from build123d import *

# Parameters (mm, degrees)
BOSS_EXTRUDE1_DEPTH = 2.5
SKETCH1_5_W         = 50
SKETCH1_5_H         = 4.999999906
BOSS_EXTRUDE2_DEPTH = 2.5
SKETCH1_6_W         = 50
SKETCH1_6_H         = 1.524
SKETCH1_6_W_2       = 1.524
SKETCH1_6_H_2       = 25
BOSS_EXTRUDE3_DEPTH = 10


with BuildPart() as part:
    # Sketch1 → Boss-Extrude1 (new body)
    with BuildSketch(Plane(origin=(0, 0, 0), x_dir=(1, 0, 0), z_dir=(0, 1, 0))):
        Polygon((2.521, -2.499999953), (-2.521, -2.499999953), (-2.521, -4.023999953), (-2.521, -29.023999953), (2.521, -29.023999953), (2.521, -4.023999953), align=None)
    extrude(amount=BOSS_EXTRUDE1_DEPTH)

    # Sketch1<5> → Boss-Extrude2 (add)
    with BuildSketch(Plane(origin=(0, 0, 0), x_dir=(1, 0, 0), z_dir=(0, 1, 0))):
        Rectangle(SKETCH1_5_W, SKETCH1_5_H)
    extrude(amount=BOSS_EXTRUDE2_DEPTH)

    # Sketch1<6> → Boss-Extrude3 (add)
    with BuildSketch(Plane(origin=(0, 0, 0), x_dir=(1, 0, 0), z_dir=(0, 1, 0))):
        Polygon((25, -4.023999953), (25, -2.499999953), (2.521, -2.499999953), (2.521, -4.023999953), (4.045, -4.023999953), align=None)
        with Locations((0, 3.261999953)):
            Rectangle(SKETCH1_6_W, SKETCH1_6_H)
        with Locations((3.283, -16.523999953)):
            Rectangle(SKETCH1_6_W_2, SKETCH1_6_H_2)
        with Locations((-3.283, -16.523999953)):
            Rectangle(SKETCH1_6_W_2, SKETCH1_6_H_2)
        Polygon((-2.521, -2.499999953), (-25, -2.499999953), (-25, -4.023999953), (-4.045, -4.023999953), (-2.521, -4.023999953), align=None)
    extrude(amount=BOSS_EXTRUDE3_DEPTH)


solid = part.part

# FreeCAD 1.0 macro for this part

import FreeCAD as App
import Part
import Sketcher

V = App.Vector

doc = App.newDocument("Part")
params = doc.addObject("Spreadsheet::Sheet", "Params")
for row, (alias, value) in enumerate([
    ("pad1_length", "2.5 mm"),
    ("sketch2_width", "50 mm"),
    ("sketch2_height", "5 mm"),
    ("pad2_length", "2.5 mm"),
    ("sketch3_width", "50 mm"),
    ("sketch3_height", "25 mm"),
    ("pad3_length", "10 mm"),
], start=1):
    params.set(f"A{row}", alias)
    params.set(f"B{row}", "=" + value)
    params.setAlias(f"B{row}", alias)

body = doc.addObject("PartDesign::Body", "Body")

sketch1 = body.newObject("Sketcher::SketchObject", "Sketch")
sketch1.AttachmentSupport = (doc.getObject("XZ_Plane"), [""])
sketch1.MapMode = "FlatFace"
sketch1.addGeometry([
    Part.LineSegment(V(3, 2, 0), V(-3, 2, 0)),
    Part.LineSegment(V(-3, 2, 0), V(-3, 29, 0)),
    Part.LineSegment(V(-3, 29, 0), V(3, 29, 0)),
    Part.LineSegment(V(3, 29, 0), V(3, 2, 0)),
], False)
sketch1.addConstraint([
    Sketcher.Constraint("Coincident", 0, 2, 1, 1),
    Sketcher.Constraint("Coincident", 1, 2, 2, 1),
    Sketcher.Constraint("Coincident", 2, 2, 3, 1),
    Sketcher.Constraint("Coincident", 3, 2, 0, 1),
    Sketcher.Constraint("Horizontal", 0),
    Sketcher.Constraint("Vertical", 1),
    Sketcher.Constraint("Horizontal", 2),
    Sketcher.Constraint("Vertical", 3),
    Sketcher.Constraint("DistanceY", -1, 1, 0, 2, 2.5),
    Sketcher.Constraint("DistanceX", 0, 2, 0, 1, 5.042),
    Sketcher.Constraint("DistanceY", 1, 1, 1, 2, 26.524),
    Sketcher.Constraint("DistanceX", 0, 2, -1, 1, 2.521),
])
pad1 = body.newObject("PartDesign::Pad", "Pad")
pad1.Profile = sketch1
pad1.setExpression("Length", "Params.pad1_length")
pad1.Reversed = True

sketch2 = body.newObject("Sketcher::SketchObject", "Sketch001")
sketch2.AttachmentSupport = (doc.getObject("XZ_Plane"), [""])
sketch2.MapMode = "FlatFace"
sketch2.addGeometry([
    Part.LineSegment(V(-25, -2.5, 0), V(-25, 2.5, 0)),
    Part.LineSegment(V(-25, 2.5, 0), V(25, 2.5, 0)),
    Part.LineSegment(V(25, 2.5, 0), V(25, -2.5, 0)),
    Part.LineSegment(V(25, -2.5, 0), V(-25, -2.5, 0)),
], False)
sketch2.addConstraint([
    Sketcher.Constraint("Coincident", 0, 2, 1, 1),
    Sketcher.Constraint("Coincident", 1, 2, 2, 1),
    Sketcher.Constraint("Coincident", 2, 2, 3, 1),
    Sketcher.Constraint("Coincident", 3, 2, 0, 1),
    Sketcher.Constraint("Vertical", 0),
    Sketcher.Constraint("Horizontal", 1),
    Sketcher.Constraint("Vertical", 2),
    Sketcher.Constraint("Horizontal", 3),
    Sketcher.Constraint("Symmetric", 0, 2, 2, 2, -1, 1),
    Sketcher.Constraint("DistanceX", 1, 1, 1, 2, 50.0),
    Sketcher.Constraint("DistanceY", 0, 1, 0, 2, 5.0),
])
sketch2.setExpression("Constraints[9]", "Params.sketch2_width")
sketch2.setExpression("Constraints[10]", "Params.sketch2_height")
pad2 = body.newObject("PartDesign::Pad", "Pad001")
pad2.Profile = sketch2
pad2.setExpression("Length", "Params.pad2_length")
pad2.Reversed = True

sketch3 = body.newObject("Sketcher::SketchObject", "Sketch002")
sketch3.AttachmentSupport = (doc.getObject("XZ_Plane"), [""])
sketch3.MapMode = "FlatFace"
sketch3.addGeometry([
    Part.LineSegment(V(25, 4, 0), V(25, 2.5, 0)),
    Part.LineSegment(V(25, 2.5, 0), V(2.5, 2.5, 0)),
    Part.LineSegment(V(2.5, 2.5, 0), V(2.5, 29, 0)),
    Part.LineSegment(V(2.5, 29, 0), V(4, 29, 0)),
    Part.LineSegment(V(4, 29, 0), V(4, 4, 0)),
    Part.LineSegment(V(4, 4, 0), V(25, 4, 0)),
    Part.LineSegment(V(-25, -4, 0), V(-25, -2.5, 0)),
    Part.LineSegment(V(-25, -2.5, 0), V(25, -2.5, 0)),
    Part.LineSegment(V(25, -2.5, 0), V(25, -4, 0)),
    Part.LineSegment(V(25, -4, 0), V(-25, -4, 0)),
    Part.LineSegment(V(-4, 4, 0), V(-4, 29, 0)),
    Part.LineSegment(V(-4, 29, 0), V(-2.5, 29, 0)),
    Part.LineSegment(V(-2.5, 29, 0), V(-2.5, 2.5, 0)),
    Part.LineSegment(V(-2.5, 2.5, 0), V(-25, 2.5, 0)),
    Part.LineSegment(V(-25, 2.5, 0), V(-25, 4, 0)),
    Part.LineSegment(V(-25, 4, 0), V(-4, 4, 0)),
], False)
sketch3.addConstraint([
    Sketcher.Constraint("Coincident", 0, 2, 1, 1),
    Sketcher.Constraint("Coincident", 1, 2, 2, 1),
    Sketcher.Constraint("Coincident", 2, 2, 3, 1),
    Sketcher.Constraint("Coincident", 3, 2, 4, 1),
    Sketcher.Constraint("Coincident", 4, 2, 5, 1),
    Sketcher.Constraint("Coincident", 5, 2, 0, 1),
    Sketcher.Constraint("Coincident", 6, 2, 7, 1),
    Sketcher.Constraint("Coincident", 7, 2, 8, 1),
    Sketcher.Constraint("Coincident", 8, 2, 9, 1),
    Sketcher.Constraint("Coincident", 9, 2, 6, 1),
    Sketcher.Constraint("Coincident", 10, 2, 11, 1),
    Sketcher.Constraint("Coincident", 11, 2, 12, 1),
    Sketcher.Constraint("Coincident", 12, 2, 13, 1),
    Sketcher.Constraint("Coincident", 13, 2, 14, 1),
    Sketcher.Constraint("Coincident", 14, 2, 15, 1),
    Sketcher.Constraint("Coincident", 15, 2, 10, 1),
    Sketcher.Constraint("Vertical", 0),
    Sketcher.Constraint("Horizontal", 1),
    Sketcher.Constraint("Vertical", 2),
    Sketcher.Constraint("Horizontal", 3),
    Sketcher.Constraint("Vertical", 4),
    Sketcher.Constraint("Horizontal", 5),
    Sketcher.Constraint("Vertical", 6),
    Sketcher.Constraint("Horizontal", 7),
    Sketcher.Constraint("Vertical", 8),
    Sketcher.Constraint("Horizontal", 9),
    Sketcher.Constraint("Vertical", 10),
    Sketcher.Constraint("Horizontal", 11),
    Sketcher.Constraint("Vertical", 12),
    Sketcher.Constraint("Horizontal", 13),
    Sketcher.Constraint("Vertical", 14),
    Sketcher.Constraint("Horizontal", 15),
    Sketcher.Constraint("Symmetric", 0, 2, 6, 2, -1, 1),
    Sketcher.Constraint("Symmetric", 7, 2, 13, 2, -1, 1),
    Sketcher.Constraint("Symmetric", 3, 2, 10, 2, -2),
    Sketcher.Constraint("Symmetric", 5, 2, 14, 2, -2),
    Sketcher.Constraint("Equal", 3, 11),
    Sketcher.Constraint("Equal", 11, 0),
    Sketcher.Constraint("Equal", 0, 6),
    Sketcher.Constraint("DistanceX", 7, 1, 7, 2, 50.0),
    Sketcher.Constraint("DistanceY", 4, 2, 4, 1, 25.0),
    Sketcher.Constraint("DistanceY", 6, 2, 1, 2, 5.0),
    Sketcher.Constraint("DistanceX", 1, 2, 1, 1, 22.479),
    Sketcher.Constraint("DistanceX", 3, 1, 3, 2, 1.524),
])
sketch3.setExpression("Constraints[39]", "Params.sketch3_width")
sketch3.setExpression("Constraints[40]", "Params.sketch3_height")
pad3 = body.newObject("PartDesign::Pad", "Pad002")
pad3.Profile = sketch3
pad3.setExpression("Length", "Params.pad3_length")
pad3.Reversed = True

doc.recompute()
